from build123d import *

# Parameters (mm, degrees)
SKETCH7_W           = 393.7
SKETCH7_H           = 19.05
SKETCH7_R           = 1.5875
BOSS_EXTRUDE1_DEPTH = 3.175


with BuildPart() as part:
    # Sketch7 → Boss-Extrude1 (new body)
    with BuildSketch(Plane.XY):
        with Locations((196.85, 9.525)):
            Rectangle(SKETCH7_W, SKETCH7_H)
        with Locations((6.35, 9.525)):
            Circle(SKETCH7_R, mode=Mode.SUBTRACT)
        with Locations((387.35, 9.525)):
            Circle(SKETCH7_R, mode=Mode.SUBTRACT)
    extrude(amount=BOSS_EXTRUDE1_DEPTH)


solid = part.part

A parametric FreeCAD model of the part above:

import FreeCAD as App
import Part
import Sketcher
Q = App.Units.Quantity

doc = App.newDocument("Part")
body = doc.addObject("PartDesign::Body", "Body")

sketch1 = body.newObject("Sketcher::SketchObject", "Sketch")
sketch1.AttachmentSupport = (doc.getObject("XY_Plane"), [""])
sketch1.MapMode = "FlatFace"
sketch1.addGeometry(Part.LineSegment(App.Vector(0, 19.1, 0), App.Vector(0, 0, 0)), False)
sketch1.addGeometry(Part.LineSegment(App.Vector(0, 0, 0), App.Vector(393.7, 0, 0)), False)
sketch1.addGeometry(Part.LineSegment(App.Vector(393.7, 0, 0), App.Vector(393.7, 19.1, 0)), False)
sketch1.addGeometry(Part.LineSegment(App.Vector(393.7, 19.1, 0), App.Vector(0, 19.1, 0)), False)
sketch1.addGeometry(Part.Circle(App.Vector(6.3, 9.5, 0), App.Vector(0, 0, 1), 1.6), False)
sketch1.addGeometry(Part.Circle(App.Vector(387.4, 9.5, 0), App.Vector(0, 0, 1), 1.6), False)
sketch1.addConstraint(Sketcher.Constraint("Coincident", 0, 2, 1, 1))
sketch1.addConstraint(Sketcher.Constraint("Coincident", 1, 2, 2, 1))
sketch1.addConstraint(Sketcher.Constraint("Coincident", 2, 2, 3, 1))
sketch1.addConstraint(Sketcher.Constraint("Coincident", 3, 2, 0, 1))
sketch1.addConstraint(Sketcher.Constraint("Vertical", 0))
sketch1.addConstraint(Sketcher.Constraint("Horizontal", 1))
sketch1.addConstraint(Sketcher.Constraint("Vertical", 2))
sketch1.addConstraint(Sketcher.Constraint("Horizontal", 3))
sketch1.addConstraint(Sketcher.Constraint("Coincident", 0, 2, -1, 1))
sketch1.addConstraint(Sketcher.Constraint("Equal", 4, 5))
sketch1.addConstraint(Sketcher.Constraint("Horizontal", 4, 3, 5, 3))
sketch1.addConstraint(Sketcher.Constraint("Diameter", 4, Q("0.125 in")))
sketch1.addConstraint(Sketcher.Constraint("DistanceX", 1, 1, 1, 2, Q("15.5 in")))
sketch1.addConstraint(Sketcher.Constraint("DistanceX", 4, 3, 5, 3, Q("15 in")))
sketch1.addConstraint(Sketcher.Constraint("DistanceY", 0, 2, 0, 1, Q("0.75 in")))
sketch1.addConstraint(Sketcher.Constraint("DistanceX", -1, 1, 4, 3, Q("0.25 in")))
sketch1.addConstraint(Sketcher.Constraint("DistanceY", -1, 1, 4, 3, Q("0.375 in")))
pad1 = body.newObject("PartDesign::Pad", "Pad")
pad1.Profile = sketch1
pad1.Length = Q("0.125 in")

doc.recompute()
